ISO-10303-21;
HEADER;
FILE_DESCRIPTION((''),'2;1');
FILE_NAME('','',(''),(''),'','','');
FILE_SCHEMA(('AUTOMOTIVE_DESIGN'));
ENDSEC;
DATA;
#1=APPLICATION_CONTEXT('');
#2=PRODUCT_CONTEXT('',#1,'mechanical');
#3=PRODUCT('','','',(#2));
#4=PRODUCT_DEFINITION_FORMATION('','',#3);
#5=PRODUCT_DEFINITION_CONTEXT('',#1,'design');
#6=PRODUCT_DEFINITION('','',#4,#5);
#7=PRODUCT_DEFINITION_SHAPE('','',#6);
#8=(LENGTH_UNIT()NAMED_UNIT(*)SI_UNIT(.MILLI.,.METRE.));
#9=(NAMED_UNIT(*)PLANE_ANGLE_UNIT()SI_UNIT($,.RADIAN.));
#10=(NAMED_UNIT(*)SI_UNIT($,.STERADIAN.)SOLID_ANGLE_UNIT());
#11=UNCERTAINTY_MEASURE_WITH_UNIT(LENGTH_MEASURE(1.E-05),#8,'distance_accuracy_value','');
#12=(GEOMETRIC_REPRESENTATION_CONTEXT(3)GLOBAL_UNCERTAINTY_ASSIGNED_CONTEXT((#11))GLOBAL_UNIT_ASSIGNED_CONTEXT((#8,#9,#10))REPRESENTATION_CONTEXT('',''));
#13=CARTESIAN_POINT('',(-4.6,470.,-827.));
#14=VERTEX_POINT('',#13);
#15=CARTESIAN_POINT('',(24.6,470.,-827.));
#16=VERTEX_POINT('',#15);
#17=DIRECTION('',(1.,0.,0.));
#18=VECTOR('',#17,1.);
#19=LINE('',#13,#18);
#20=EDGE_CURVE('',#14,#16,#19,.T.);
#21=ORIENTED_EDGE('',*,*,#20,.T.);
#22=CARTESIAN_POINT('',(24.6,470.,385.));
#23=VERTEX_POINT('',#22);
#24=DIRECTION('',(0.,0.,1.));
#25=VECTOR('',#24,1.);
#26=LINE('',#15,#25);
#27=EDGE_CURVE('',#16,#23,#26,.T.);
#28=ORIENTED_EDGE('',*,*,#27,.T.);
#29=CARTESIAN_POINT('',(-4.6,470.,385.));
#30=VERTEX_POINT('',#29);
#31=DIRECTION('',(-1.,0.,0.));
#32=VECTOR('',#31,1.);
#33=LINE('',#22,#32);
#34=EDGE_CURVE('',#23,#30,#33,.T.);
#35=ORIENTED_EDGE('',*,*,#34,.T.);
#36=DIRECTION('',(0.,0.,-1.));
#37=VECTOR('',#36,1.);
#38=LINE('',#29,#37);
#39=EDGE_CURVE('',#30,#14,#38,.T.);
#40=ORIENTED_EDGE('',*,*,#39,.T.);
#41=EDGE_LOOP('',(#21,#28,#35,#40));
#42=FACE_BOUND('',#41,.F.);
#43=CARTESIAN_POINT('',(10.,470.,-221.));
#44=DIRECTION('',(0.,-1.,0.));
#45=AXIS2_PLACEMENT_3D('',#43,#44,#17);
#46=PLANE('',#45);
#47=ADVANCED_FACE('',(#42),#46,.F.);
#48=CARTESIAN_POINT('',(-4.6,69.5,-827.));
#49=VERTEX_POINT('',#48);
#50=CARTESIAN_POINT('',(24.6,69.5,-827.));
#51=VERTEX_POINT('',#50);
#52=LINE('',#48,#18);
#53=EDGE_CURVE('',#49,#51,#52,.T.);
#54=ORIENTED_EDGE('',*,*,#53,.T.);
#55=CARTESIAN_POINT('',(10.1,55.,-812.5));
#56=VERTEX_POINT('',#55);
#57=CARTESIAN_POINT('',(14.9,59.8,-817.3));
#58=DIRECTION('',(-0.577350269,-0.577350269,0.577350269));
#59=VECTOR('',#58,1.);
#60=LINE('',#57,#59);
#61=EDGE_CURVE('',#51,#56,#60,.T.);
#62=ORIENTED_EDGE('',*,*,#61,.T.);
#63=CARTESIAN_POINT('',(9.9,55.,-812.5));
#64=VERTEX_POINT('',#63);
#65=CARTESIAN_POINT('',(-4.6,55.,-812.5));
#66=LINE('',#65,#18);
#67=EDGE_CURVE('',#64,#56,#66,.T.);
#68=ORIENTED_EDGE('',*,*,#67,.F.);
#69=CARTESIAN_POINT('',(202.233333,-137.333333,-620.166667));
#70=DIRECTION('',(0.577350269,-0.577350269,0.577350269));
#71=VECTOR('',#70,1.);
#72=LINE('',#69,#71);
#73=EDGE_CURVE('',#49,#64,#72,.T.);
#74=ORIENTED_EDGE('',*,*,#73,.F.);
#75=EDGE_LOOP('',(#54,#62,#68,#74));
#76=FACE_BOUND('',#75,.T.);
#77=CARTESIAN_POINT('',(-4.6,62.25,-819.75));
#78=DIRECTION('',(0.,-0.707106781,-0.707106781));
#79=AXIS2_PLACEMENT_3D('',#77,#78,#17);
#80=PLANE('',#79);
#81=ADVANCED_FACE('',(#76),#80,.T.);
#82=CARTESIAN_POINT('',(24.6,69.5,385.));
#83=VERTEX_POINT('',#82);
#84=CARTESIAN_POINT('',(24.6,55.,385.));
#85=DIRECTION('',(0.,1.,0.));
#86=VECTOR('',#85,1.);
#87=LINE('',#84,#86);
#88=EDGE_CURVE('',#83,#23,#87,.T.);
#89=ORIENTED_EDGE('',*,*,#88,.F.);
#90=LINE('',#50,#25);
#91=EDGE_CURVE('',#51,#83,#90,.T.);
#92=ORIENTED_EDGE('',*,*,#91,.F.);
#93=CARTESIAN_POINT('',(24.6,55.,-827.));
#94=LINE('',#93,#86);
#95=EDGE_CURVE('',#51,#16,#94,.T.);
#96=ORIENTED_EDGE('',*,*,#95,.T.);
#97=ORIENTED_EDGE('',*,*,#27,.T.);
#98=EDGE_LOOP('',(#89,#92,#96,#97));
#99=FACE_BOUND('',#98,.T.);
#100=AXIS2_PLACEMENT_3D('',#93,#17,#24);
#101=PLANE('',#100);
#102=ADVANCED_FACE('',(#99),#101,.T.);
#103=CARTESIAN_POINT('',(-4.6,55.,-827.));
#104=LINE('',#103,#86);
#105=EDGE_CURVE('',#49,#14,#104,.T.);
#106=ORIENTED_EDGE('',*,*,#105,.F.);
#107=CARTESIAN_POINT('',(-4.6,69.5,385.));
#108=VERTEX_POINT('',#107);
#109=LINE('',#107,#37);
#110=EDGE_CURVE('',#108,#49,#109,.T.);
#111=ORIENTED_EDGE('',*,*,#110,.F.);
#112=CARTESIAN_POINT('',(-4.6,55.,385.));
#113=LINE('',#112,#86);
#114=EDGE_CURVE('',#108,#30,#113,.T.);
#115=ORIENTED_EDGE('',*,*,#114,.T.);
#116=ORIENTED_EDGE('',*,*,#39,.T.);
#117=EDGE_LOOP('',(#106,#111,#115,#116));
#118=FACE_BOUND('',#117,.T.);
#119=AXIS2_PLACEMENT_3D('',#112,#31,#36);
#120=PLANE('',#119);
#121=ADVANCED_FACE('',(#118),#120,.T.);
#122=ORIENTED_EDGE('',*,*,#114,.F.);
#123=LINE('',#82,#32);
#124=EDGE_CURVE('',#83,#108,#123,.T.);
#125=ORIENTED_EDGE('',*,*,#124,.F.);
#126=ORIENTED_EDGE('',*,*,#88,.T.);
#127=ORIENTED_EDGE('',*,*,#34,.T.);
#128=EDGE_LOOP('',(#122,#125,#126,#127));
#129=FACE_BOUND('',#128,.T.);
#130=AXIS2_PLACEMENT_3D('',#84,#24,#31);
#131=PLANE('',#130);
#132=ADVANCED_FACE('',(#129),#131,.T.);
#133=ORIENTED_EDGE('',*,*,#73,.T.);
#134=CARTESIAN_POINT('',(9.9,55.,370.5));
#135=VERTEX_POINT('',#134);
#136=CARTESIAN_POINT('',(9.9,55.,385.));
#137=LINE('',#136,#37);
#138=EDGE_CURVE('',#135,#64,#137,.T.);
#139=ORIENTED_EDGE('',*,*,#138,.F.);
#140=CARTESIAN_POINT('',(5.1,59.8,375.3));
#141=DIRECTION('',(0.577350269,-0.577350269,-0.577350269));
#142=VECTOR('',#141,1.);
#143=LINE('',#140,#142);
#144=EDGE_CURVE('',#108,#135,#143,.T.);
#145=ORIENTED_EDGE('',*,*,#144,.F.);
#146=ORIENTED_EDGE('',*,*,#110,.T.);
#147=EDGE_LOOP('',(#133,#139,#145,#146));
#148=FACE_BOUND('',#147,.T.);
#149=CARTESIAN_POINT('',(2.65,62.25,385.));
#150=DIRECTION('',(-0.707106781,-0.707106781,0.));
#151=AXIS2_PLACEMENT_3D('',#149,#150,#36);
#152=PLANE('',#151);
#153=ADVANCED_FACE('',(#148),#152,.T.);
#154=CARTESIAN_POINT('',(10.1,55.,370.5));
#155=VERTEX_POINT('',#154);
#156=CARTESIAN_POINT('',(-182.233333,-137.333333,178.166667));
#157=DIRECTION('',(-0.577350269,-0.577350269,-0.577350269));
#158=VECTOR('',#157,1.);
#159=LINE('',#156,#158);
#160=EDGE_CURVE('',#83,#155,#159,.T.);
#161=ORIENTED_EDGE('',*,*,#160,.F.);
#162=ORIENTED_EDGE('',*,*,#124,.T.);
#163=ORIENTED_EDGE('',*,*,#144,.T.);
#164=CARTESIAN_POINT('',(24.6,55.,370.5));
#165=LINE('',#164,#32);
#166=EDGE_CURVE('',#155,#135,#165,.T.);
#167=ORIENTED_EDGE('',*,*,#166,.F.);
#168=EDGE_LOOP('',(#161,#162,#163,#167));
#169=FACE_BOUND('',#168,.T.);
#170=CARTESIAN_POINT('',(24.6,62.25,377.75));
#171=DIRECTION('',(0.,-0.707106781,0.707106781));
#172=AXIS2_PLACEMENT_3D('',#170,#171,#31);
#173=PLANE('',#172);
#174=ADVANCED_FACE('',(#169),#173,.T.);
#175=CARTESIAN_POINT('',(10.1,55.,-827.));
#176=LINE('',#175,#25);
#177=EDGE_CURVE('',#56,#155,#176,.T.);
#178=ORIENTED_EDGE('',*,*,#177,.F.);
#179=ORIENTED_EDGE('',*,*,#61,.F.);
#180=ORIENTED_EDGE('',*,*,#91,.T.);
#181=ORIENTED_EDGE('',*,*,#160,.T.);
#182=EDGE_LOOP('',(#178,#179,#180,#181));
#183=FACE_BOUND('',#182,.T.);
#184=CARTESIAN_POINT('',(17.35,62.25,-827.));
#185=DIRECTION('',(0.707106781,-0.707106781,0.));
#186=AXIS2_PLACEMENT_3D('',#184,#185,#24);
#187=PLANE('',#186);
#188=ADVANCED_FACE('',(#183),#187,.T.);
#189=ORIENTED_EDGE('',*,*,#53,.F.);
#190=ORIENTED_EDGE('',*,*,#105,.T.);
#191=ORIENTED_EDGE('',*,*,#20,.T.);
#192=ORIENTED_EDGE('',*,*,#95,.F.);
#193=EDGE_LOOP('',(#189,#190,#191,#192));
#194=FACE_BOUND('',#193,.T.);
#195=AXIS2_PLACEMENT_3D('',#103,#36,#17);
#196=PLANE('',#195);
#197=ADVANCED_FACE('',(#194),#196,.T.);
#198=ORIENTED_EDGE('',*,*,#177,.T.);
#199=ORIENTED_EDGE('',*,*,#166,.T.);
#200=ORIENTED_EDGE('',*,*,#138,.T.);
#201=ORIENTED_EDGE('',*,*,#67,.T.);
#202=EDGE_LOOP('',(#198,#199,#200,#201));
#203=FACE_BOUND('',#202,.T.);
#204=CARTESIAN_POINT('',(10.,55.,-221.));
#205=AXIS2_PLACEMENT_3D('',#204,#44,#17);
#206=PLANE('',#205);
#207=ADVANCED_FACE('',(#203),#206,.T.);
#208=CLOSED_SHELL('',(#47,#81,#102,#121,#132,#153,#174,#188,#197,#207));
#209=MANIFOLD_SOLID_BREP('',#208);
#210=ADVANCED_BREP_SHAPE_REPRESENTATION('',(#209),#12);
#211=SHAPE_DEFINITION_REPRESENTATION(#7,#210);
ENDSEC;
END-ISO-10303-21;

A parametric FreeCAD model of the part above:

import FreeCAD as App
import Part
import Sketcher
from FreeCAD import Vector


def edges_at(feature, points):
    """Names of the edges that pass closest to the given points."""
    edges = feature.Shape.Edges
    near = lambda p: min(range(len(edges)), key=lambda i: edges[i].distToShape(Part.Vertex(*p))[0])
    return sorted({f"Edge{near(p) + 1}" for p in points})

doc = App.newDocument("Part")
body = doc.addObject("PartDesign::Body", "Body")

# Sketch on XZ plane
sketch1 = body.newObject("Sketcher::SketchObject", "Sketch")
sketch1.AttachmentSupport = (doc.getObject("XZ_Plane"), [""])
sketch1.MapMode = "FlatFace"
sketch1.AttachmentOffset = App.Placement(Vector(0, 0, -55), App.Rotation())
sketch1.addGeometry(Part.LineSegment(Vector(-5, -827, 0), Vector(25, -827, 0)), False)
sketch1.addGeometry(Part.LineSegment(Vector(25, -827, 0), Vector(25, 385, 0)), False)
sketch1.addGeometry(Part.LineSegment(Vector(25, 385, 0), Vector(-5, 385, 0)), False)
sketch1.addGeometry(Part.LineSegment(Vector(-5, 385, 0), Vector(-5, -827, 0)), False)
sketch1.addConstraint(Sketcher.Constraint("Coincident", 0, 2, 1, 1))
sketch1.addConstraint(Sketcher.Constraint("Coincident", 1, 2, 2, 1))
sketch1.addConstraint(Sketcher.Constraint("Coincident", 2, 2, 3, 1))
sketch1.addConstraint(Sketcher.Constraint("Coincident", 3, 2, 0, 1))
sketch1.addConstraint(Sketcher.Constraint("Horizontal", 0))
sketch1.addConstraint(Sketcher.Constraint("Vertical", 1))
sketch1.addConstraint(Sketcher.Constraint("Horizontal", 2))
sketch1.addConstraint(Sketcher.Constraint("Vertical", 3))
sketch1.addConstraint(Sketcher.Constraint("DistanceY", 1, 1, 1, 2, 1212.0))
sketch1.addConstraint(Sketcher.Constraint("DistanceX", 0, 1, 0, 2, 29.2))
sketch1.addConstraint(Sketcher.Constraint("DistanceY", 0, 2, -1, 1, 827.0))
sketch1.addConstraint(Sketcher.Constraint("DistanceX", -1, 1, 0, 2, 24.6))
pad1 = body.newObject("PartDesign::Pad", "Pad")
pad1.Profile = sketch1
pad1.Length = 415
pad1.Reversed = True
doc.recompute()

chamfer = body.newObject("PartDesign::Chamfer", "Chamfer")
chamfer.Base = (pad1, edges_at(pad1, [
    (-4.6, 55, -221),
    (10, 55, -827),
    (24.6, 55, -221),
    (10, 55, 385),
]))
chamfer.ChamferType = "Two distances"
chamfer.Size = 14.5
chamfer.Size2 = 14.5

doc.recompute()
